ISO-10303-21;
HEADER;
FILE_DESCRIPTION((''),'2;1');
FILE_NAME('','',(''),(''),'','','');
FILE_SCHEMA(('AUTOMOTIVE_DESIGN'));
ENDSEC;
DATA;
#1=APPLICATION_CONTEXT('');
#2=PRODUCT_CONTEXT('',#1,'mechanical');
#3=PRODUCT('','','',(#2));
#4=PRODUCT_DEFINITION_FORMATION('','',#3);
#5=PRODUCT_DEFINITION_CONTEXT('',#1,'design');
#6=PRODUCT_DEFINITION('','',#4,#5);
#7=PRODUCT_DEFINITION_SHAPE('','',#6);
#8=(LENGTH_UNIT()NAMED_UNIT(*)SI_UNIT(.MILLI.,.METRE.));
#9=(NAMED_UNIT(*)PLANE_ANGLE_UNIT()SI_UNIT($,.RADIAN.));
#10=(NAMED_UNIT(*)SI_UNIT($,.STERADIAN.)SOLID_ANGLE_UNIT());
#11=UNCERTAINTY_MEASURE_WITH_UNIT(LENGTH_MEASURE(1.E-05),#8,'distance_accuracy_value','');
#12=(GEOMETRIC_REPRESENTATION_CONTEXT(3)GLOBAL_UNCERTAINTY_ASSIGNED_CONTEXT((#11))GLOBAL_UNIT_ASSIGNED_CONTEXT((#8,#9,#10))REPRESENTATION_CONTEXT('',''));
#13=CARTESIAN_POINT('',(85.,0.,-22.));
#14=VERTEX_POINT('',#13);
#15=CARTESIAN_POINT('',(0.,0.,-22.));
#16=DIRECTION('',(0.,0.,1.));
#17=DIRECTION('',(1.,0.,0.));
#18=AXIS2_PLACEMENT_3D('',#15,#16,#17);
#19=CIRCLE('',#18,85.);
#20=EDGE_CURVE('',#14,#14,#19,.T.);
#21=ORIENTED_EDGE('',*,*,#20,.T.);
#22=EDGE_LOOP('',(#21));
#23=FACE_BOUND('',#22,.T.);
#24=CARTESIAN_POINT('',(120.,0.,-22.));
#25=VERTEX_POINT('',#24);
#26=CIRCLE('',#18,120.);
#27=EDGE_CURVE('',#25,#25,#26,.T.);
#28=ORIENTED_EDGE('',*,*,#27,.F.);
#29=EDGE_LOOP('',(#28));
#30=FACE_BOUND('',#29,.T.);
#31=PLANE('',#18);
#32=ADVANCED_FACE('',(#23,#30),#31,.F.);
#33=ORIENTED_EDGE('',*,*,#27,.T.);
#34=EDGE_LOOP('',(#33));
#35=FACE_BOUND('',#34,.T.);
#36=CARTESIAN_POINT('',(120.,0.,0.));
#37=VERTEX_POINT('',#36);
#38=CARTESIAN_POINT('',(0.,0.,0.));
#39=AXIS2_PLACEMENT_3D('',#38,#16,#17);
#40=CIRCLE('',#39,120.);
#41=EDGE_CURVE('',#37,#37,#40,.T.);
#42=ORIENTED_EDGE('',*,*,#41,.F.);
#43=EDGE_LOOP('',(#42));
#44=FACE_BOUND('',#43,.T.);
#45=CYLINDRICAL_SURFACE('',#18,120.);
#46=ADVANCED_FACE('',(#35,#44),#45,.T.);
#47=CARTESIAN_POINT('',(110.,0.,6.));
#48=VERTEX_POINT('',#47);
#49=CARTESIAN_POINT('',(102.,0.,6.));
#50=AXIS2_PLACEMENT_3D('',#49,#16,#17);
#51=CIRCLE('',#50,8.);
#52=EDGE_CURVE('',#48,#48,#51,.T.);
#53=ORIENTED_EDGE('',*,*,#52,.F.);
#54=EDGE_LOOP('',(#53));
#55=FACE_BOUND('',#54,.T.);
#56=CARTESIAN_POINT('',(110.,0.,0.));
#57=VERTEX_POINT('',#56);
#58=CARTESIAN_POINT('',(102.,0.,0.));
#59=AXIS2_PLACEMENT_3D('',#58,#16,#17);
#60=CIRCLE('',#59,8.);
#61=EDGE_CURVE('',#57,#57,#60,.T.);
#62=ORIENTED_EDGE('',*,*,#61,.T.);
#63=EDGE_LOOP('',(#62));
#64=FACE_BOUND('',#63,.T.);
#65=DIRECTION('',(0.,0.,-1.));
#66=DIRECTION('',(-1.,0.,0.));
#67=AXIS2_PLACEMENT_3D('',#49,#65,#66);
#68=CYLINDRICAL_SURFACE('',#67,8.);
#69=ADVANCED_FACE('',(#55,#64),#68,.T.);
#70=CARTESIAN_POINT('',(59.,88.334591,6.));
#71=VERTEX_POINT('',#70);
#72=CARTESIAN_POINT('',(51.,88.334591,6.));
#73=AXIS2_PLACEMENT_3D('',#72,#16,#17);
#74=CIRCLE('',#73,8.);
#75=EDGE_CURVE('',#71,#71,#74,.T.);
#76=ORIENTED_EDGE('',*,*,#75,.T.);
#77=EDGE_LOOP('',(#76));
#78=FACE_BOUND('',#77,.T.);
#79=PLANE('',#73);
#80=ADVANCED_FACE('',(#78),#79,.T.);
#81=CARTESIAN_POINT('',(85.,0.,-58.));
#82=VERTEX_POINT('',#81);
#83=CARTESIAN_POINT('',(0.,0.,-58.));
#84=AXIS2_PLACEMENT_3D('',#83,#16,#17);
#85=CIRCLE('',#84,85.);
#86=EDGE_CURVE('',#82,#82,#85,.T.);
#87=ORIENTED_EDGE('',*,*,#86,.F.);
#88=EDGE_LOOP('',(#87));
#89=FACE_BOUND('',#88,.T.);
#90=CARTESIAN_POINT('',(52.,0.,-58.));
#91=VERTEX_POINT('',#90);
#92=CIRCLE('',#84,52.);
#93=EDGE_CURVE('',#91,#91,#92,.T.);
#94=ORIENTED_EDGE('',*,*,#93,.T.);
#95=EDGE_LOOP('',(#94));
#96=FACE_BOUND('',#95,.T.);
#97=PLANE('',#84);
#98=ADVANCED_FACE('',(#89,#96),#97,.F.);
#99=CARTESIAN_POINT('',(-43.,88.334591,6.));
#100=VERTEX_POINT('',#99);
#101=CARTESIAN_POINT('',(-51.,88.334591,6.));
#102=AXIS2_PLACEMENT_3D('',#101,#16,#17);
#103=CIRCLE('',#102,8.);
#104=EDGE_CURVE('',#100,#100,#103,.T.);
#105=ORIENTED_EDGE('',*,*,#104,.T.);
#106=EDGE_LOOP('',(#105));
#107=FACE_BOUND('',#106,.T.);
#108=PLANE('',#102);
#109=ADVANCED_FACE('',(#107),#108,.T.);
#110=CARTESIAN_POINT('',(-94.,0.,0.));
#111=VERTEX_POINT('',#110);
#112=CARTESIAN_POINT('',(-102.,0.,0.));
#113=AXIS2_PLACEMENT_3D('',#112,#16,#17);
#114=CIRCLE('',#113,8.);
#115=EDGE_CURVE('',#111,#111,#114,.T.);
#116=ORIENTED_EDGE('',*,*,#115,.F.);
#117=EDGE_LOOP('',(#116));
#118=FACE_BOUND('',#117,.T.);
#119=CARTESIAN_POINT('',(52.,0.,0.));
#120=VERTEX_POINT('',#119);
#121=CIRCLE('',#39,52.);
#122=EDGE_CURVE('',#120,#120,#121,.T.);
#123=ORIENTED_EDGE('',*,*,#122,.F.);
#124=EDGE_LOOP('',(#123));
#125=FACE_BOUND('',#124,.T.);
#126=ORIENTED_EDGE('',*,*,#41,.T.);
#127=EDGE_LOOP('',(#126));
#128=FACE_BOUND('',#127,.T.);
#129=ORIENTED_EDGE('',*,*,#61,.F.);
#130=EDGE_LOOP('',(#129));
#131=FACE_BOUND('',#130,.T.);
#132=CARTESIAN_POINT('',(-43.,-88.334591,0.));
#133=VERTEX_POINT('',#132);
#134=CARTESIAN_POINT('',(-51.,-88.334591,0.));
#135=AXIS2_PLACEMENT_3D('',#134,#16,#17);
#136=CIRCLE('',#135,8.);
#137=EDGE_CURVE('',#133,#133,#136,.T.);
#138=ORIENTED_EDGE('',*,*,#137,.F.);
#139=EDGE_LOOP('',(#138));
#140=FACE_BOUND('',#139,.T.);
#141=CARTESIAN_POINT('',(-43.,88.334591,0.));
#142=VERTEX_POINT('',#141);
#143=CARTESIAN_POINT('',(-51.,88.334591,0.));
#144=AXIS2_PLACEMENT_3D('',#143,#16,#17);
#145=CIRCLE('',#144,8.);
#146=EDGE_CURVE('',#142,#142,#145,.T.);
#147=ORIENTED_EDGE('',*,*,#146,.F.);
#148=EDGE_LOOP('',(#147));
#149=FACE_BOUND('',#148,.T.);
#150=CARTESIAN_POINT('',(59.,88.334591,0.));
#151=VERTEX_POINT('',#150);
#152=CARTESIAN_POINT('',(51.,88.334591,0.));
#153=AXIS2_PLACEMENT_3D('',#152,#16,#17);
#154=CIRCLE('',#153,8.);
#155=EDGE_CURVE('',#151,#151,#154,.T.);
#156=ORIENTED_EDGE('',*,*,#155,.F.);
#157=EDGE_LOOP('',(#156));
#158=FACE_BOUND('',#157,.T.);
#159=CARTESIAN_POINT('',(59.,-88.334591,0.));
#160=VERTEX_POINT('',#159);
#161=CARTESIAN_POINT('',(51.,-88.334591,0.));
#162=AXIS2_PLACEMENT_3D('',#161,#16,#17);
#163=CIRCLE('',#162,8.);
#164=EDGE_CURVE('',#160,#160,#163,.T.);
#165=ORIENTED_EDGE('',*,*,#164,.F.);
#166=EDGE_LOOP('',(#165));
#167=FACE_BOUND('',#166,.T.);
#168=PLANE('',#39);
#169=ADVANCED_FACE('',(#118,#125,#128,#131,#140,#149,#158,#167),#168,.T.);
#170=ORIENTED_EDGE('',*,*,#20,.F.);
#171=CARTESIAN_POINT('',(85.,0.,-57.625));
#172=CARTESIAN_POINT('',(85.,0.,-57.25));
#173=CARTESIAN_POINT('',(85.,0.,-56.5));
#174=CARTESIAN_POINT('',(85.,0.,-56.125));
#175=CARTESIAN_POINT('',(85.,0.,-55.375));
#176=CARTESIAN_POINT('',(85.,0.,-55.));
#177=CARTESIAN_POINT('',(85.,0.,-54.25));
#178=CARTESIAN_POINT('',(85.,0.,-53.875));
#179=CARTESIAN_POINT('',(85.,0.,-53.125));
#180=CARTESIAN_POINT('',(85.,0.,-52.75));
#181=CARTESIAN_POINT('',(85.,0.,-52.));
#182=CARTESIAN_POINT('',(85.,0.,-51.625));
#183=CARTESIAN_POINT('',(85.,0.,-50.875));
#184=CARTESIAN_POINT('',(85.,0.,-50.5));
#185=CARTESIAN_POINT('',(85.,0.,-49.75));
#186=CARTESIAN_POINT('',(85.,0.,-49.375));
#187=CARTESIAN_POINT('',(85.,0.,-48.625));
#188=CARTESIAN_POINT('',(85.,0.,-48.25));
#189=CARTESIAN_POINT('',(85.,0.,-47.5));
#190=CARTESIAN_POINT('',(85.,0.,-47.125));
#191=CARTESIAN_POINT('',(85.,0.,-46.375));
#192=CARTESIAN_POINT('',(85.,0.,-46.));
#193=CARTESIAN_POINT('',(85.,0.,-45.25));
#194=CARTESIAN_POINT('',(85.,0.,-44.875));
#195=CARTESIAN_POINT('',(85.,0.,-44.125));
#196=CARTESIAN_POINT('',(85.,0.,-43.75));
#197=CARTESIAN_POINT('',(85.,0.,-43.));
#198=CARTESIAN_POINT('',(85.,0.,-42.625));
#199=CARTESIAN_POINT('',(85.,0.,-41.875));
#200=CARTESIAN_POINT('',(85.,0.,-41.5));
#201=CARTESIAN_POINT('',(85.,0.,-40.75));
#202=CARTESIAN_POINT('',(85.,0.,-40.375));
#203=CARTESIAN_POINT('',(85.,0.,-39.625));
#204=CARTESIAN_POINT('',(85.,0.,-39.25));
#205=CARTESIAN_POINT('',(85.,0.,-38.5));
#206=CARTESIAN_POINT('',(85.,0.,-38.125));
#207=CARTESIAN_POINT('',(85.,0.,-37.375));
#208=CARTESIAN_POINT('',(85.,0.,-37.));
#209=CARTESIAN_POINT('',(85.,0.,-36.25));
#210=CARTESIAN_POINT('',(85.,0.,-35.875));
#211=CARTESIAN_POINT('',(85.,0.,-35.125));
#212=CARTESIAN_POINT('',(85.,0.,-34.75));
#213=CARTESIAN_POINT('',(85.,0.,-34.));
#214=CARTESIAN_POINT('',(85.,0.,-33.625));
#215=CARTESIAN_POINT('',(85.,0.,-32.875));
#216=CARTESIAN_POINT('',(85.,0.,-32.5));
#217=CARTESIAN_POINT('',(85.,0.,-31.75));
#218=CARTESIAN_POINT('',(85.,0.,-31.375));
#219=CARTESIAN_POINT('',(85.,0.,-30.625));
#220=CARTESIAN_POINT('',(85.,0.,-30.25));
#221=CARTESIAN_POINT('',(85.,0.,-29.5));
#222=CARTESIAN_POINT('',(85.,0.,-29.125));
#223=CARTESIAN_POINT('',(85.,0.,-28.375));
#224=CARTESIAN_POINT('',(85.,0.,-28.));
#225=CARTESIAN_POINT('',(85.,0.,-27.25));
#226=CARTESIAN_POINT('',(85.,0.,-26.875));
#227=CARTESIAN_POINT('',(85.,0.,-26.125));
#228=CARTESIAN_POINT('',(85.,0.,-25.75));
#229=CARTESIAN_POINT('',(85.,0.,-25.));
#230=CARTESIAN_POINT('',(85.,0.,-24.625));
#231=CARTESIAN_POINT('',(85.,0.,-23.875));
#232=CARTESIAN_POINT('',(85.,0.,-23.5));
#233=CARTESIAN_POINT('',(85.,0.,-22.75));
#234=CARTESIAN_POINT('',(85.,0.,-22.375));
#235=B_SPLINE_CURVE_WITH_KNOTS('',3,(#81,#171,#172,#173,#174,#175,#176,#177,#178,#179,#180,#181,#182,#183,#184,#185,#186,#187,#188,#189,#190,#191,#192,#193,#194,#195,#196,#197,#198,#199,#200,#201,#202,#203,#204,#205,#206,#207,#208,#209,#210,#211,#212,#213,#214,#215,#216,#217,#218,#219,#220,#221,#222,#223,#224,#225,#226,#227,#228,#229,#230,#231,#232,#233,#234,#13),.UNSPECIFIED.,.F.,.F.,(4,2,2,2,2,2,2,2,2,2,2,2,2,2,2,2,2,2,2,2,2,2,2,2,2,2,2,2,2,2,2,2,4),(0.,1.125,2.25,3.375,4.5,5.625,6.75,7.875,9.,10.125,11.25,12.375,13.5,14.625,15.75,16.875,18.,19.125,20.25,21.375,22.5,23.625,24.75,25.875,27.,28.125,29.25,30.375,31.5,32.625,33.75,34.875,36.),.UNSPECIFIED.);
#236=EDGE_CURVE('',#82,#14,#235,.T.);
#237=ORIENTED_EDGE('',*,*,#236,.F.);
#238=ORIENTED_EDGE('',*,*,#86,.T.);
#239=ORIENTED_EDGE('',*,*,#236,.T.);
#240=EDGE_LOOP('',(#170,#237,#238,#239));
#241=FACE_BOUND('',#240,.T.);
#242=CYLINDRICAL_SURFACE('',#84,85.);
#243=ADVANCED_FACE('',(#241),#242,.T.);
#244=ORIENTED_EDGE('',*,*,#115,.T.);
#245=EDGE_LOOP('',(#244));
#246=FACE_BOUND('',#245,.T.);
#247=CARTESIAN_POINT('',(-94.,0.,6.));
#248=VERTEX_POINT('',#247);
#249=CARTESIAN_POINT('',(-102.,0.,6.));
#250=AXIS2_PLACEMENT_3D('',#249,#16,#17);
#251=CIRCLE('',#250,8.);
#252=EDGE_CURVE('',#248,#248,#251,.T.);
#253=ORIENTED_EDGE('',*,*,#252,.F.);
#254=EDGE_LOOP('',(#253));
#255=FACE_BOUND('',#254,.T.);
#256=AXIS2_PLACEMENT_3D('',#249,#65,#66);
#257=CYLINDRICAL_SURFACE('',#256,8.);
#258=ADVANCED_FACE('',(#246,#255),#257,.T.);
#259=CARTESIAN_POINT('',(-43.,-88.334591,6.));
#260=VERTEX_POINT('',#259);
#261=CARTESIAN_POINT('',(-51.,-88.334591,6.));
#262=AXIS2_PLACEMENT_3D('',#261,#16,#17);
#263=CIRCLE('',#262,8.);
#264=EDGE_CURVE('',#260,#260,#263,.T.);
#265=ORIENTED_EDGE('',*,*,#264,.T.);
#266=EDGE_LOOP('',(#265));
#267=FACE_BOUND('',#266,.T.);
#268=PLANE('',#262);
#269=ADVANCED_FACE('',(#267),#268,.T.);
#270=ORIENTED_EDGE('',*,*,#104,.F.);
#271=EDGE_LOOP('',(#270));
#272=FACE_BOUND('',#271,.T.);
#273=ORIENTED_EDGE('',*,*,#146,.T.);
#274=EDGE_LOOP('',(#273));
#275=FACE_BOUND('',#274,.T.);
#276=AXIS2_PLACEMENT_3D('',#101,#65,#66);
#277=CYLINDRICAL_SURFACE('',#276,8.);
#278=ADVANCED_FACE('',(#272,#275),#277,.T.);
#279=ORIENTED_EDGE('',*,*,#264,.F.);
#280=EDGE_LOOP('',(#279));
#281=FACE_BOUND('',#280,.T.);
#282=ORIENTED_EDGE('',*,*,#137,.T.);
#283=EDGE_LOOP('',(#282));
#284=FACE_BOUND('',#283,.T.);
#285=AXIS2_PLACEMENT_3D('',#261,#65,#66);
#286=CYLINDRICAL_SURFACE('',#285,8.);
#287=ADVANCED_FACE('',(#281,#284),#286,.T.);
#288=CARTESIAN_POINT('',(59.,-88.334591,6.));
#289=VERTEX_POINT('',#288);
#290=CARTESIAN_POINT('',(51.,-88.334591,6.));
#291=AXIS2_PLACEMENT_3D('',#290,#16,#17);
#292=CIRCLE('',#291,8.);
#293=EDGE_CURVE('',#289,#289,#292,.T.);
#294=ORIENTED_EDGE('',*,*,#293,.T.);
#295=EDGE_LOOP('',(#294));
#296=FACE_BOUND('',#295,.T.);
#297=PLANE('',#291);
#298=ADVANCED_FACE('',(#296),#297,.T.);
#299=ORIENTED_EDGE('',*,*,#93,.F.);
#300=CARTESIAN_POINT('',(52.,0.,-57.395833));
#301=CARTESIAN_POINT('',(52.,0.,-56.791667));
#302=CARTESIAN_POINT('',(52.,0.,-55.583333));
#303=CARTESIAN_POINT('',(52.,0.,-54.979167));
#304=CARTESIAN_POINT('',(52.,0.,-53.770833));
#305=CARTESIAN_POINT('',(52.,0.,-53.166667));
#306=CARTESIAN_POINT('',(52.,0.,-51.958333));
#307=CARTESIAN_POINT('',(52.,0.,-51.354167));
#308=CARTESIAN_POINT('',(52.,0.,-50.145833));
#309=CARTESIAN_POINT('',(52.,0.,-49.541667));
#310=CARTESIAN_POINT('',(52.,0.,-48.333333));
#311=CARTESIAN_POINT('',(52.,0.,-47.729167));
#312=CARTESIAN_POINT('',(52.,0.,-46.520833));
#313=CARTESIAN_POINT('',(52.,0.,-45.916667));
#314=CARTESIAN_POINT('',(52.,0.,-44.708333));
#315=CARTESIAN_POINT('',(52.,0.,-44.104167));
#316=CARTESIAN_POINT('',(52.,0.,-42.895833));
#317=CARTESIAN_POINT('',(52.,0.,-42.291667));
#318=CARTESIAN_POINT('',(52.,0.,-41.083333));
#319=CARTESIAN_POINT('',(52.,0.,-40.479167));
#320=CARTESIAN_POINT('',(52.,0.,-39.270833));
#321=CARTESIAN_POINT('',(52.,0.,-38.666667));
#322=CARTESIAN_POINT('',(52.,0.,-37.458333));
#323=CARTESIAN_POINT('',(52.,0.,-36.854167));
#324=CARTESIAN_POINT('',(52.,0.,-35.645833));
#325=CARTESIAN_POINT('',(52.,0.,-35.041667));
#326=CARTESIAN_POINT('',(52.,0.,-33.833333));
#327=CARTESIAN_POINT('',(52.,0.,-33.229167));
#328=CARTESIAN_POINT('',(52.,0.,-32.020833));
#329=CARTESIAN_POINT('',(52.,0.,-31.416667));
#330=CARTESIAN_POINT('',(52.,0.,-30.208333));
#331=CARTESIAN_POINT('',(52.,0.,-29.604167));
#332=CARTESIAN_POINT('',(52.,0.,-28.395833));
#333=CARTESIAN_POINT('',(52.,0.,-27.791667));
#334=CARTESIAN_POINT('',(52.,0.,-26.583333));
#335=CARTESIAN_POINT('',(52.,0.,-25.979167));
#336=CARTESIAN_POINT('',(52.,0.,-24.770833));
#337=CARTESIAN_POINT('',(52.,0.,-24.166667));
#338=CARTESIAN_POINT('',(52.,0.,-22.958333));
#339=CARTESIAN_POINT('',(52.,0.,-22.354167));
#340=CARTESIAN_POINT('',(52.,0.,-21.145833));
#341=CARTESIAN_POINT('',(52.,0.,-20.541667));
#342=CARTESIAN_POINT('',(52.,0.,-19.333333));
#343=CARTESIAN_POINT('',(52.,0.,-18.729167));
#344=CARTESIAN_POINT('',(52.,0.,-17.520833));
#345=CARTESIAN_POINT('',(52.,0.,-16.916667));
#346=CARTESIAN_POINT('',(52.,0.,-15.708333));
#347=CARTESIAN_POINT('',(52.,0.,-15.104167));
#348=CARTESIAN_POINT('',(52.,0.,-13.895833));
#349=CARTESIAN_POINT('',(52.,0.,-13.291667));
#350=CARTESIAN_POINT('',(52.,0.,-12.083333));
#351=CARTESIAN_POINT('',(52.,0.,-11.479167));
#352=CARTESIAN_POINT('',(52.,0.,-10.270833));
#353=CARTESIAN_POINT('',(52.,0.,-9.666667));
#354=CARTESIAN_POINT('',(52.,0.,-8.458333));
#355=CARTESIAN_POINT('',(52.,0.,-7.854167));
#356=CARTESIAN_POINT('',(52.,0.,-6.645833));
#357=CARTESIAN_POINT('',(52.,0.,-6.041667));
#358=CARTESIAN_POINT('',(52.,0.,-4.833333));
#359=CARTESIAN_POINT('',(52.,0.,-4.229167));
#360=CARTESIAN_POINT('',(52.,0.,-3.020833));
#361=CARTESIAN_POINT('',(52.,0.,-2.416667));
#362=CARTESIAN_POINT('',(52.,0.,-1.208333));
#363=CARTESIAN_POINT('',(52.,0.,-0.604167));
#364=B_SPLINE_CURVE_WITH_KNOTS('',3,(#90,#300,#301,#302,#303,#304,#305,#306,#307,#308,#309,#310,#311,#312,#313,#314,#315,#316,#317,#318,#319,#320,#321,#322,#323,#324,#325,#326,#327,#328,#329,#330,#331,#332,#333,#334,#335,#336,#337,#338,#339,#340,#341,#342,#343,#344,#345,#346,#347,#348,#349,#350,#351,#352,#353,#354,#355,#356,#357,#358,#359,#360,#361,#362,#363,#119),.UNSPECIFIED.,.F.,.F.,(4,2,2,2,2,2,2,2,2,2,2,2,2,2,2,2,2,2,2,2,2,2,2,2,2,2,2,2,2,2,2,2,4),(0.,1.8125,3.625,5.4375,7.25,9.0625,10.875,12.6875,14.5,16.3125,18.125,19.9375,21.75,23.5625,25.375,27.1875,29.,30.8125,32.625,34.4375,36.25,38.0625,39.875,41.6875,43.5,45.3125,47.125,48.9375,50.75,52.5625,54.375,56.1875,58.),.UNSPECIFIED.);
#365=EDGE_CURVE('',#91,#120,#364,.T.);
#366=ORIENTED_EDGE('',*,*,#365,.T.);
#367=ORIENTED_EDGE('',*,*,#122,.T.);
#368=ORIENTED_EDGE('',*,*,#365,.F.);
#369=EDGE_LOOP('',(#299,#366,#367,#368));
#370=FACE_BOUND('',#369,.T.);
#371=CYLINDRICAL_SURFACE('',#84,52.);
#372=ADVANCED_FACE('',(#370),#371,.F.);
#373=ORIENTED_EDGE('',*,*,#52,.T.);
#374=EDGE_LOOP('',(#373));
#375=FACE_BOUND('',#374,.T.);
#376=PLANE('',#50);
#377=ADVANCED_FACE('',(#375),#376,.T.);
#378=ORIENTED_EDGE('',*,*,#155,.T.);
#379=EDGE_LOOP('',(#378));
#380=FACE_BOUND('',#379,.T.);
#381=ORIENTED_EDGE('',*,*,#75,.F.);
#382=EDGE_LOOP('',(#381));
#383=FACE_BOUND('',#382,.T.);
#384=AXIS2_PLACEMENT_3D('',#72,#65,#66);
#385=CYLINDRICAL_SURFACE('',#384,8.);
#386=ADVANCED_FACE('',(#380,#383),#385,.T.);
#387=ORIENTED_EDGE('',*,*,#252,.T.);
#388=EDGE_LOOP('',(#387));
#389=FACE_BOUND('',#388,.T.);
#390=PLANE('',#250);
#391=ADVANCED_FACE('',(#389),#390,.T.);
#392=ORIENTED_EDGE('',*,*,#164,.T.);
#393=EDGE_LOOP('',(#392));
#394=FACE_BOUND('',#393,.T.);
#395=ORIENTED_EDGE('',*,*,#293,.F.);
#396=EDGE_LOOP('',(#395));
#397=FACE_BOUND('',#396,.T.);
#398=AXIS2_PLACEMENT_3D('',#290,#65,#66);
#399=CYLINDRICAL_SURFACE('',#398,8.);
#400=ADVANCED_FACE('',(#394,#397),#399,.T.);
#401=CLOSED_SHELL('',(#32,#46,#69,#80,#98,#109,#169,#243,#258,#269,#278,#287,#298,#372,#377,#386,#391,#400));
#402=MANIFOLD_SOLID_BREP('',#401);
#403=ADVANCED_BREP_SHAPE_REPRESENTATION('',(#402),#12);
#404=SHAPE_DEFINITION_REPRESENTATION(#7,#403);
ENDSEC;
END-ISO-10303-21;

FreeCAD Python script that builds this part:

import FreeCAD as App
import Part
import Sketcher

V = App.Vector

doc = App.newDocument("Part")
body = doc.addObject("PartDesign::Body", "Body")

sketch1 = body.newObject("Sketcher::SketchObject", "Sketch")
sketch1.AttachmentSupport = (doc.getObject("XY_Plane"), [""])
sketch1.MapMode = "FlatFace"
sketch1.addGeometry(Part.Circle(V(0, 0, 0), V(0, 0, 1), 85), False)
sketch1.addGeometry(Part.Circle(V(0, 0, 0), V(0, 0, 1), 52), False)
sketch1.addConstraint(Sketcher.Constraint("Coincident", 0, 3, -1, 1))
sketch1.addConstraint(Sketcher.Constraint("Coincident", 1, 3, -1, 1))
sketch1.addConstraint(Sketcher.Constraint("Diameter", 0, 170.0))
sketch1.addConstraint(Sketcher.Constraint("Diameter", 1, 104.0))
pad1 = body.newObject("PartDesign::Pad", "Pad")
pad1.Profile = sketch1
pad1.Length = 58
pad1.Reversed = True

sketch2 = body.newObject("Sketcher::SketchObject", "Sketch001")
sketch2.AttachmentSupport = (doc.getObject("XY_Plane"), [""])
sketch2.MapMode = "FlatFace"
sketch2.addGeometry(Part.Circle(V(0, 0, 0), V(0, 0, 1), 120), False)
sketch2.addGeometry(Part.Circle(V(0, 0, 0), V(0, 0, 1), 85), False)
sketch2.addConstraint(Sketcher.Constraint("Coincident", 0, 3, -1, 1))
sketch2.addConstraint(Sketcher.Constraint("Coincident", 1, 3, -1, 1))
sketch2.addConstraint(Sketcher.Constraint("Diameter", 0, 240.0))
sketch2.addConstraint(Sketcher.Constraint("Diameter", 1, 170.0))
pad2 = body.newObject("PartDesign::Pad", "Pad001")
pad2.Profile = sketch2
pad2.Length = 22
pad2.Reversed = True

sketch3 = body.newObject("Sketcher::SketchObject", "Sketch002")
sketch3.AttachmentSupport = (doc.getObject("XY_Plane"), [""])
sketch3.MapMode = "FlatFace"
sketch3.addGeometry(Part.Circle(V(102, 0, 0), V(0, 0, 1), 8), False)
sketch3.addGeometry(Part.Circle(V(51, 88, 0), V(0, 0, 1), 8), False)
sketch3.addGeometry(Part.Circle(V(-51, 88, 0), V(0, 0, 1), 8), False)
sketch3.addGeometry(Part.Circle(V(-102, 0, 0), V(0, 0, 1), 8), False)
sketch3.addGeometry(Part.Circle(V(-51, -88, 0), V(0, 0, 1), 8), False)
sketch3.addGeometry(Part.Circle(V(51, -88, 0), V(0, 0, 1), 8), False)
sketch3.addConstraint(Sketcher.Constraint("Equal", 0, 1))
sketch3.addConstraint(Sketcher.Constraint("Equal", 1, 2))
sketch3.addConstraint(Sketcher.Constraint("Equal", 2, 3))
sketch3.addConstraint(Sketcher.Constraint("Equal", 3, 4))
sketch3.addConstraint(Sketcher.Constraint("Equal", 4, 5))
sketch3.addConstraint(Sketcher.Constraint("Symmetric", 0, 3, 3, 3, -1, 1))
sketch3.addConstraint(Sketcher.Constraint("Symmetric", 1, 3, 4, 3, -1, 1))
sketch3.addConstraint(Sketcher.Constraint("Symmetric", 2, 3, 5, 3, -1, 1))
sketch3.addConstraint(Sketcher.Constraint("Symmetric", 1, 3, 2, 3, -2))
sketch3.addConstraint(Sketcher.Constraint("PointOnObject", 0, 3, -1))
sketch3.addConstraint(Sketcher.Constraint("Diameter", 0, 16.0))
sketch3.addConstraint(Sketcher.Constraint("DistanceX", -1, 1, 0, 3, 102.0))
sketch3.addConstraint(Sketcher.Constraint("DistanceX", -1, 1, 1, 3, 51.0))
sketch3.addConstraint(Sketcher.Constraint("DistanceY", -1, 1, 1, 3, 88.334591))
pad3 = body.newObject("PartDesign::Pad", "Pad002")
pad3.Profile = sketch3
pad3.Length = 6

doc.recompute()
